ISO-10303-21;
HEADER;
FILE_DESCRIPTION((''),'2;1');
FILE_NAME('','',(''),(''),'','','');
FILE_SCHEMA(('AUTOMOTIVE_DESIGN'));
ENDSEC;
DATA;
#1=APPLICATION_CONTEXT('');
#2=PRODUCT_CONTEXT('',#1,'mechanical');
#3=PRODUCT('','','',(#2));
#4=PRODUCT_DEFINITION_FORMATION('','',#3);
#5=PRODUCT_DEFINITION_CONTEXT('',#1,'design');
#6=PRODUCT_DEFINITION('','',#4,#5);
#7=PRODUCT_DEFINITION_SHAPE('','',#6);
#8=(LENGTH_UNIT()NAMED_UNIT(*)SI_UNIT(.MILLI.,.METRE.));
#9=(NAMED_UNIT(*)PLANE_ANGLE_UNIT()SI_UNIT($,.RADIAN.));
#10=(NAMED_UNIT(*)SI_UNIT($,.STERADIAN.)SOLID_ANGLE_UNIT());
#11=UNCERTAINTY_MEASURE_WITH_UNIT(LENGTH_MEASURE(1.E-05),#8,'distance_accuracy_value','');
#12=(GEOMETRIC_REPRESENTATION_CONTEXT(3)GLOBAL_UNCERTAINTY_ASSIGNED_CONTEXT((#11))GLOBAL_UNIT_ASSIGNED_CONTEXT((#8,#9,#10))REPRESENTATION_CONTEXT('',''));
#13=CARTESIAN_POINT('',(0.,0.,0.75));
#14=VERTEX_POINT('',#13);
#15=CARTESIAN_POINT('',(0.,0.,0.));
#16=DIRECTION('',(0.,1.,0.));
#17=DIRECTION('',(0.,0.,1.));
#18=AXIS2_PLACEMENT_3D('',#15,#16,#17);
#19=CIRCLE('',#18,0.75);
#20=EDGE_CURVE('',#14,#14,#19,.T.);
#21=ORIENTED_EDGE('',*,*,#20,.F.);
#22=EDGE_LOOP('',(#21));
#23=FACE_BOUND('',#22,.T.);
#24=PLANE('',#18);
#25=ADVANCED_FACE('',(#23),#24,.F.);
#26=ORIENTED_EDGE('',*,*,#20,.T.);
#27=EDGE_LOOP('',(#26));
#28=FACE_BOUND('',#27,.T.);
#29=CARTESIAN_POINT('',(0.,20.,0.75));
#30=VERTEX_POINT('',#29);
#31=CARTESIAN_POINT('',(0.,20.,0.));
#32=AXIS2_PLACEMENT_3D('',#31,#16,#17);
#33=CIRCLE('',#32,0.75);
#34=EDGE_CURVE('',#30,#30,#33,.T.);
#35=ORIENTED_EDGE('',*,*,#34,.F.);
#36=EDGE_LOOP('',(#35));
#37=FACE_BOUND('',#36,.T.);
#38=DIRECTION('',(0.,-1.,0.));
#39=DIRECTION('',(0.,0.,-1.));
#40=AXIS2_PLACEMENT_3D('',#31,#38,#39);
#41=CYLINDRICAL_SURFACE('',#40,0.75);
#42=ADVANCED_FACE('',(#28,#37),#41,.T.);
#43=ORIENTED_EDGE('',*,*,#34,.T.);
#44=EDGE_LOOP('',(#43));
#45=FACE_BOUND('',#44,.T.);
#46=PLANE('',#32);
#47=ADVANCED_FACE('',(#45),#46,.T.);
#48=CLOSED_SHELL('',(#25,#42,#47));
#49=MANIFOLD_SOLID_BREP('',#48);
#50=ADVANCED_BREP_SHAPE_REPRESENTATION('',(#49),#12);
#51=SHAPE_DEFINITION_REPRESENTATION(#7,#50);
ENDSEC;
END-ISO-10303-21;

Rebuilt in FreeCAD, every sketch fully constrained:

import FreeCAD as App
import Part
import Sketcher

V = App.Vector
Q = App.Units.Quantity

doc = App.newDocument("Part")
body = doc.addObject("PartDesign::Body", "Body")

sketch1 = body.newObject("Sketcher::SketchObject", "Sketch")
sketch1.AttachmentSupport = (doc.getObject("XZ_Plane"), [""])
sketch1.MapMode = "FlatFace"
sketch1.addGeometry(Part.Circle(V(0, 0, 0), V(0, 0, 1), 0.75), False)
sketch1.addConstraint(Sketcher.Constraint("Coincident", 0, 3, -1, 1))
sketch1.addConstraint(Sketcher.Constraint("Diameter", 0, Q("1.5 mm")))
pad1 = body.newObject("PartDesign::Pad", "Pad")
pad1.Profile = sketch1
pad1.Length = 20
pad1.Reversed = True

doc.recompute()
